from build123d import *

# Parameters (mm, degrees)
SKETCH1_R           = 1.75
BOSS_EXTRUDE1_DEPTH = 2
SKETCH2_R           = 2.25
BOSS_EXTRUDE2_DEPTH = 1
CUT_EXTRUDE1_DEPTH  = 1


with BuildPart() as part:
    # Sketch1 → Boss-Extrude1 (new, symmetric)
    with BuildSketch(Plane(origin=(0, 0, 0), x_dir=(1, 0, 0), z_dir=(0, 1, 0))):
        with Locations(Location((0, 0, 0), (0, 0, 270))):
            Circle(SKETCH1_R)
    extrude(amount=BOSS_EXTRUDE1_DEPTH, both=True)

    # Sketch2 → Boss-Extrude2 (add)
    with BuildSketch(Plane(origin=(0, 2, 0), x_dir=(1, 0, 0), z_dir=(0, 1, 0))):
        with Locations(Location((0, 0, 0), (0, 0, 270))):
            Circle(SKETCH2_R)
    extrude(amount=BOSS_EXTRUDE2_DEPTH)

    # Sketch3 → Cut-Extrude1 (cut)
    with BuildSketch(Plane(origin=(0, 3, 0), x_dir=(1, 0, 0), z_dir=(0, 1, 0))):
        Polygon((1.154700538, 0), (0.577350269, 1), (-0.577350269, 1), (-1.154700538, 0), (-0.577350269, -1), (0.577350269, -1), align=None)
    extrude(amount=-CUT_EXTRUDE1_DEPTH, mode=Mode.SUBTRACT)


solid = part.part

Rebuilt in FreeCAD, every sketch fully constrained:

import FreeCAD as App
import Part
import Sketcher

V = App.Vector
Q = App.Units.Quantity


def add_polygon(sketch, points):
    """Adds a closed chain of lines whose ends are joined by coincident constraints."""
    first, n = sketch.GeometryCount, len(points)
    for a, b in zip(points, points[1:] + points[:1]):
        sketch.addGeometry(Part.LineSegment(App.Vector(*a, 0), App.Vector(*b, 0)), False)
    for i in range(n):
        sketch.addConstraint(Sketcher.Constraint("Coincident", first + i, 2, first + (i + 1) % n, 1))

doc = App.newDocument("Part")
body = doc.addObject("PartDesign::Body", "Body")

# Sketch on XZ plane
sketch1 = doc.addObject("Sketcher::SketchObject", "Sketch")
body.addObject(sketch1)
sketch1.AttachmentSupport = (doc.XZ_Plane, [""])
sketch1.MapMode = "FlatFace"
sketch1.addGeometry(Part.Circle(V(0, 0, 0), V(0, 0, 1), 1.75), False)
sketch1.addConstraint([
    Sketcher.Constraint("Coincident", 0, 3, -1, 1),
    Sketcher.Constraint("Diameter", 0, Q("3.5 mm")),
])
pad1 = doc.addObject("PartDesign::Pad", "Pad")
body.addObject(pad1)
pad1.Profile = sketch1
pad1.Length = 4
pad1.Midplane = True

# Sketch on XZ plane
sketch2 = doc.addObject("Sketcher::SketchObject", "Sketch001")
body.addObject(sketch2)
sketch2.AttachmentSupport = (doc.XZ_Plane, [""])
sketch2.MapMode = "FlatFace"
sketch2.AttachmentOffset = App.Placement(V(0, 0, -2), App.Rotation())
sketch2.addGeometry(Part.Circle(V(0, 0, 0), V(0, 0, 1), 2.25), False)
sketch2.addConstraint([
    Sketcher.Constraint("Coincident", 0, 3, -1, 1),
    Sketcher.Constraint("Diameter", 0, Q("4.5 mm")),
])
pad2 = doc.addObject("PartDesign::Pad", "Pad001")
body.addObject(pad2)
pad2.Profile = sketch2
pad2.Length = 1
pad2.Reversed = True

# Sketch on XZ plane
sketch3 = doc.addObject("Sketcher::SketchObject", "Sketch002")
body.addObject(sketch3)
sketch3.AttachmentSupport = (doc.XZ_Plane, [""])
sketch3.MapMode = "FlatFace"
sketch3.AttachmentOffset = App.Placement(V(0, 0, -3), App.Rotation())
add_polygon(sketch3, [(1.154701, 0), (0.57735, -1), (-0.57735, -1), (-1.154701, 0), (-0.57735, 1), (0.57735, 1)])  # lines 0-5
sketch3.addConstraint([
    Sketcher.Constraint("Horizontal", 1),
    Sketcher.Constraint("Horizontal", 4),
    Sketcher.Constraint("Symmetric", 0, 2, 3, 2, -1, 1),
    Sketcher.Constraint("Symmetric", 2, 2, 5, 2, -1, 1),
    Sketcher.Constraint("PointOnObject", 2, 2, -1),
    Sketcher.Constraint("Parallel", 2, 5),
    Sketcher.Constraint("Vertical", 1, 2, 3, 2),
    Sketcher.Constraint("Angle", 0, Q("-120 deg")),
    Sketcher.Constraint("DistanceY", 0, 2, -1, 1, Q("1 mm")),
    Sketcher.Constraint("DistanceX", 1, 2, 1, 1, Q("1.154701 mm")),
])
pocket1 = doc.addObject("PartDesign::Pocket", "Pocket")
body.addObject(pocket1)
pocket1.Profile = sketch3
pocket1.Length = 1
pocket1.Reversed = True

doc.recompute()
